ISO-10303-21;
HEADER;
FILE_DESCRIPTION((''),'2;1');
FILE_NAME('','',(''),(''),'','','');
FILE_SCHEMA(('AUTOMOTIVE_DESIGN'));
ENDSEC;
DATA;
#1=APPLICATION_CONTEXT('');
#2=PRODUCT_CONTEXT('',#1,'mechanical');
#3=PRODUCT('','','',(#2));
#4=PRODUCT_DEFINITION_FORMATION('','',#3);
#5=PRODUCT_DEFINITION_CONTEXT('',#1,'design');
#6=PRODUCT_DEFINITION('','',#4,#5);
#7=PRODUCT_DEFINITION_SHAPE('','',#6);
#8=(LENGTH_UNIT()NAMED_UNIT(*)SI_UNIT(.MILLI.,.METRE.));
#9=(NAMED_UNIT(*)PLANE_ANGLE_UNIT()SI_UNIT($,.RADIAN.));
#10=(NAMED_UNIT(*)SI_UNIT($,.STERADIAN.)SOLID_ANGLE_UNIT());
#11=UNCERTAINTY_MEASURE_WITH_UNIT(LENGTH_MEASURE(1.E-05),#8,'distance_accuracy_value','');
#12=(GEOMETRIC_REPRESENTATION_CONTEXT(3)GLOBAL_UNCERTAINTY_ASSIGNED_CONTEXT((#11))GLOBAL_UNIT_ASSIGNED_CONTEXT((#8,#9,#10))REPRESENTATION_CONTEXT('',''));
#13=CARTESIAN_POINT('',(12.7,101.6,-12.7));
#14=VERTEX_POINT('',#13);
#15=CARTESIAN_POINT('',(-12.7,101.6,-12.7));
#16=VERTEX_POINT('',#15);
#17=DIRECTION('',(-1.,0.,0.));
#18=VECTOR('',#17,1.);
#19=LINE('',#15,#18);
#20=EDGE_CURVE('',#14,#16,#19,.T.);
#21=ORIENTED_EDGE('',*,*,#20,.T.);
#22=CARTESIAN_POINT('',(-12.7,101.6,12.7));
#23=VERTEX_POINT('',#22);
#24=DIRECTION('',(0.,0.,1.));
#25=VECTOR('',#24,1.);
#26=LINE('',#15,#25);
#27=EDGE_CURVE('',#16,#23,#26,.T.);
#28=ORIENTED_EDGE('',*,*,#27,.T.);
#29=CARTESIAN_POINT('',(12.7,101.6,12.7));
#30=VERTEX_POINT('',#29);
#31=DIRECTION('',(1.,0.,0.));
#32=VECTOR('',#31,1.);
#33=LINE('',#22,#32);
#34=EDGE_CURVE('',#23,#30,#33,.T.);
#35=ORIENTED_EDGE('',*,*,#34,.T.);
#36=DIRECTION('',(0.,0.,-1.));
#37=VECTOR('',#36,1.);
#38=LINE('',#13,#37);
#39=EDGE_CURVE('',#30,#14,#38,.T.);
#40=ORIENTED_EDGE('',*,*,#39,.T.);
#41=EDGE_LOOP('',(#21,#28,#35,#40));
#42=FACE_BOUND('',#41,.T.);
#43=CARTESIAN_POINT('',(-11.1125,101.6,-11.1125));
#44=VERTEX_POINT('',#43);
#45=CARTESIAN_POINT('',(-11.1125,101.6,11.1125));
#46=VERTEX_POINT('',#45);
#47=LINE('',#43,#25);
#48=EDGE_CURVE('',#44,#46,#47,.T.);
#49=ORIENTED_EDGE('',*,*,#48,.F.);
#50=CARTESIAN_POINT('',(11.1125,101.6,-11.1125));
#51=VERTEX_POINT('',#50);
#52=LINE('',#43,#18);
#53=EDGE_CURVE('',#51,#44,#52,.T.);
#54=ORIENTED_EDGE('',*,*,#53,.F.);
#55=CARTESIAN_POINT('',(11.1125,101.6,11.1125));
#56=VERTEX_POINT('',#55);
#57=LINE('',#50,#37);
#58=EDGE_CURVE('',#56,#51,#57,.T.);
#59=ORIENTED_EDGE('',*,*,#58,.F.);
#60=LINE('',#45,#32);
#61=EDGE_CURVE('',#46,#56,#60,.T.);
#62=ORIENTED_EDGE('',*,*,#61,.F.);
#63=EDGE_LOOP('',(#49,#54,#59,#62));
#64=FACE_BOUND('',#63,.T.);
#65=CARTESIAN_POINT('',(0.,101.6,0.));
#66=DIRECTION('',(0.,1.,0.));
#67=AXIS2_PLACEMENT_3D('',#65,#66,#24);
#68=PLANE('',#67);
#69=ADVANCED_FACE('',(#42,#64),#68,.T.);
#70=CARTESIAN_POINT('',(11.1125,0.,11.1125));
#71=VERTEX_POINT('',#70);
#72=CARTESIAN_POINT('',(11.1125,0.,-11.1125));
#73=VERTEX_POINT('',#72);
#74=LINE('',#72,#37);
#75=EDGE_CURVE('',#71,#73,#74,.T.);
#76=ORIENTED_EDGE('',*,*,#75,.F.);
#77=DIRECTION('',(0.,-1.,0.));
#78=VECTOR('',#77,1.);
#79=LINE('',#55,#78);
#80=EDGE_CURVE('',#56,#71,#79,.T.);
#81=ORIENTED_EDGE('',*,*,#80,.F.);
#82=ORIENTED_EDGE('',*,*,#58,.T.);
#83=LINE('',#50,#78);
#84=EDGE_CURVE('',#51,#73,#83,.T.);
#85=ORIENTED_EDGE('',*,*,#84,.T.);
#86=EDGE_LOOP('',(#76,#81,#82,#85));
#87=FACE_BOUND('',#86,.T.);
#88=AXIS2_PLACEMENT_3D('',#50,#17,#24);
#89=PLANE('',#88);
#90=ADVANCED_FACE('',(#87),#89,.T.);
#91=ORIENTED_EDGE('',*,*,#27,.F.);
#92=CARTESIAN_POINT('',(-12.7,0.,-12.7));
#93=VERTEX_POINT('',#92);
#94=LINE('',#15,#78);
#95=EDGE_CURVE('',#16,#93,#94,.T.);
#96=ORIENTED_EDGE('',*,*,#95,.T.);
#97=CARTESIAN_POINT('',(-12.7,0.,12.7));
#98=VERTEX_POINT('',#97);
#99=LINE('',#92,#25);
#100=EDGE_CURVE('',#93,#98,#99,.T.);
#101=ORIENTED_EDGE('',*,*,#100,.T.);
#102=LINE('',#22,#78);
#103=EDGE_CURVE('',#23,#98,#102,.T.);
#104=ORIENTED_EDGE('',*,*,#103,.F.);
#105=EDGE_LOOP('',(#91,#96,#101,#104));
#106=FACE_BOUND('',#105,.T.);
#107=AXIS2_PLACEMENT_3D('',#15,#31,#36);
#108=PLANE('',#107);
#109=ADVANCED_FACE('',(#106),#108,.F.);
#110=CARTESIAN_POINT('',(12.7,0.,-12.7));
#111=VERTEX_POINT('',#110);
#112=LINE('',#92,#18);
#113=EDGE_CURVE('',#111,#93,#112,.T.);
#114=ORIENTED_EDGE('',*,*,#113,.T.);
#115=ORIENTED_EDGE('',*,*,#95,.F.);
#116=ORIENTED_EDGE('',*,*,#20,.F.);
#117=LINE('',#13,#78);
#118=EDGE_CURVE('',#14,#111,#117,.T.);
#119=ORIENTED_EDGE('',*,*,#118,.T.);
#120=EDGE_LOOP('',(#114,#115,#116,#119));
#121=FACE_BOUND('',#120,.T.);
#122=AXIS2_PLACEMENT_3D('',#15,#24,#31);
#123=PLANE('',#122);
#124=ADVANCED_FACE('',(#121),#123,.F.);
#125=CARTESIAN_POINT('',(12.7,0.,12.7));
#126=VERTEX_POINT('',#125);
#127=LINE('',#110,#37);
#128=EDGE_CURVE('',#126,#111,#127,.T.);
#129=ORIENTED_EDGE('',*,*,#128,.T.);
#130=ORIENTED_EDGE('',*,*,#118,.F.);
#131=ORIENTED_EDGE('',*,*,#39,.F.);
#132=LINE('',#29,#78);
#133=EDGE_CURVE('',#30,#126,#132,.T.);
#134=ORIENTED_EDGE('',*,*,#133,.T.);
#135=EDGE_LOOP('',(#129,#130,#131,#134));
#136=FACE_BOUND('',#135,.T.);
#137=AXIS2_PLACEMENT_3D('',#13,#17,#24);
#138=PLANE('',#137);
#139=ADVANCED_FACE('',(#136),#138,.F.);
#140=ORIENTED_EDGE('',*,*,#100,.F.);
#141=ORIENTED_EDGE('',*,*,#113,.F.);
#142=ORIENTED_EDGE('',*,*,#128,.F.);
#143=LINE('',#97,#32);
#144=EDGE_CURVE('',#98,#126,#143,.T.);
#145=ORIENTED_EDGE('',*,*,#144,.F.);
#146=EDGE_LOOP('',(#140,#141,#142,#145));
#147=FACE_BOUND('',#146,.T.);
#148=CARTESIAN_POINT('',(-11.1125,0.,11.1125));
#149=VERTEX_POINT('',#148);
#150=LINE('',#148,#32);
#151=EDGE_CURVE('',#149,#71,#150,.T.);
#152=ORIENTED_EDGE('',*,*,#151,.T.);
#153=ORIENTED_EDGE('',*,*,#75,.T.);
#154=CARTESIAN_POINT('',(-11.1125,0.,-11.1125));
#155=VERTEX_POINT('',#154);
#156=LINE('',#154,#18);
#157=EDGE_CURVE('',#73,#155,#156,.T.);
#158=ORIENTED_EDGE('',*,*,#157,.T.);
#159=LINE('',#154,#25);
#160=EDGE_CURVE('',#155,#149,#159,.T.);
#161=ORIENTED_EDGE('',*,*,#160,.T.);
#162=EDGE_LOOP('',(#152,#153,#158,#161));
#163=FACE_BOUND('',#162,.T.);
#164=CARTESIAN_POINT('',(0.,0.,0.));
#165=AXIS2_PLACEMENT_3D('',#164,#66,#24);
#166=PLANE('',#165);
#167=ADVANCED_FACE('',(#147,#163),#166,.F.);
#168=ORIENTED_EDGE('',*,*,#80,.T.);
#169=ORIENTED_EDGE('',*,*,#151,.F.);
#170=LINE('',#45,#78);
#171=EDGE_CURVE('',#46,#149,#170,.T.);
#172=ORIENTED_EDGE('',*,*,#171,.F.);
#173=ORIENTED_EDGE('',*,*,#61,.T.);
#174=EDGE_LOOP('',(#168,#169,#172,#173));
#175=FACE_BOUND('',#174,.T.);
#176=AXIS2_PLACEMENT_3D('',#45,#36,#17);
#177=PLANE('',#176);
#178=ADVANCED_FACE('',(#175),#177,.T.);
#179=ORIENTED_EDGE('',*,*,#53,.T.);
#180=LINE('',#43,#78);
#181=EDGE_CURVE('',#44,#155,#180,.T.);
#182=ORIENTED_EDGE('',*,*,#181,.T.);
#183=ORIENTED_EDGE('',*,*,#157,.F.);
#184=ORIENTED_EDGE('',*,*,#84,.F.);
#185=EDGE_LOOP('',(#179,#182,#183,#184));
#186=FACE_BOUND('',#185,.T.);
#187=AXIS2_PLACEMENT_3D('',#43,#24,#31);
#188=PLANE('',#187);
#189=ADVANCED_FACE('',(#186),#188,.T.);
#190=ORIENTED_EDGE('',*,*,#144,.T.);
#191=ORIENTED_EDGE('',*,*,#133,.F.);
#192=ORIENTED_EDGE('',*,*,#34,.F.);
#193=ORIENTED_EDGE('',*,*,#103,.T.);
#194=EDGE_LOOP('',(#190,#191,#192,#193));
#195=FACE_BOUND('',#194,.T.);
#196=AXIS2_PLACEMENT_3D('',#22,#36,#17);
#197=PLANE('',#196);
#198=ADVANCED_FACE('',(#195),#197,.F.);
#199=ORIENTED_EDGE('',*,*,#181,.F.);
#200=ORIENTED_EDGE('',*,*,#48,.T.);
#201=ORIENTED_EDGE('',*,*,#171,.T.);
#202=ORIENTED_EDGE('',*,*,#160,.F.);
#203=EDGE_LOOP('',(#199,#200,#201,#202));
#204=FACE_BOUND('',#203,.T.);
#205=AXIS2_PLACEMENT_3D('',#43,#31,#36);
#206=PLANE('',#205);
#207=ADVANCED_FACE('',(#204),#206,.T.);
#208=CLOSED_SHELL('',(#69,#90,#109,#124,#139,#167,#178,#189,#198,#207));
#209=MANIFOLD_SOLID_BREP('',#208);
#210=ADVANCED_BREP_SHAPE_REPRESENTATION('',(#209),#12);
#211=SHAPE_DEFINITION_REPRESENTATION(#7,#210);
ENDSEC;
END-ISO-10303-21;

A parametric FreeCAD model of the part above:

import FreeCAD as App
import Part
import Sketcher
Q = App.Units.Quantity

doc = App.newDocument("Part")
body = doc.addObject("PartDesign::Body", "Body")

sketch1 = body.newObject("Sketcher::SketchObject", "Sketch")
sketch1.AttachmentSupport = (doc.getObject("XZ_Plane"), [""])
sketch1.MapMode = "FlatFace"
sketch1.addGeometry(Part.LineSegment(App.Vector(-13, -13, 0), App.Vector(-13, 13, 0)), False)
sketch1.addGeometry(Part.LineSegment(App.Vector(-13, 13, 0), App.Vector(13, 13, 0)), False)
sketch1.addGeometry(Part.LineSegment(App.Vector(13, 13, 0), App.Vector(13, -13, 0)), False)
sketch1.addGeometry(Part.LineSegment(App.Vector(13, -13, 0), App.Vector(-13, -13, 0)), False)
sketch1.addGeometry(Part.LineSegment(App.Vector(11, 11, 0), App.Vector(-11, 11, 0)), False)
sketch1.addGeometry(Part.LineSegment(App.Vector(-11, 11, 0), App.Vector(-11, -11, 0)), False)
sketch1.addGeometry(Part.LineSegment(App.Vector(-11, -11, 0), App.Vector(11, -11, 0)), False)
sketch1.addGeometry(Part.LineSegment(App.Vector(11, -11, 0), App.Vector(11, 11, 0)), False)
sketch1.addConstraint(Sketcher.Constraint("Coincident", 0, 2, 1, 1))
sketch1.addConstraint(Sketcher.Constraint("Coincident", 1, 2, 2, 1))
sketch1.addConstraint(Sketcher.Constraint("Coincident", 2, 2, 3, 1))
sketch1.addConstraint(Sketcher.Constraint("Coincident", 3, 2, 0, 1))
sketch1.addConstraint(Sketcher.Constraint("Coincident", 4, 2, 5, 1))
sketch1.addConstraint(Sketcher.Constraint("Coincident", 5, 2, 6, 1))
sketch1.addConstraint(Sketcher.Constraint("Coincident", 6, 2, 7, 1))
sketch1.addConstraint(Sketcher.Constraint("Coincident", 7, 2, 4, 1))
sketch1.addConstraint(Sketcher.Constraint("Vertical", 0))
sketch1.addConstraint(Sketcher.Constraint("Horizontal", 1))
sketch1.addConstraint(Sketcher.Constraint("Vertical", 2))
sketch1.addConstraint(Sketcher.Constraint("Horizontal", 3))
sketch1.addConstraint(Sketcher.Constraint("Horizontal", 4))
sketch1.addConstraint(Sketcher.Constraint("Vertical", 5))
sketch1.addConstraint(Sketcher.Constraint("Horizontal", 6))
sketch1.addConstraint(Sketcher.Constraint("Vertical", 7))
sketch1.addConstraint(Sketcher.Constraint("Symmetric", 0, 2, 2, 2, -1, 1))
sketch1.addConstraint(Sketcher.Constraint("Symmetric", 4, 2, 6, 2, -1, 1))
sketch1.addConstraint(Sketcher.Constraint("Equal", 3, 0))
sketch1.addConstraint(Sketcher.Constraint("Equal", 6, 5))
sketch1.addConstraint(Sketcher.Constraint("DistanceX", 1, 1, 1, 2, Q("1 in")))
sketch1.addConstraint(Sketcher.Constraint("DistanceX", 4, 2, 4, 1, Q("0.875 in")))
pad1 = body.newObject("PartDesign::Pad", "Pad")
pad1.Profile = sketch1
pad1.Length = Q("4 in")
pad1.Reversed = True

doc.recompute()
